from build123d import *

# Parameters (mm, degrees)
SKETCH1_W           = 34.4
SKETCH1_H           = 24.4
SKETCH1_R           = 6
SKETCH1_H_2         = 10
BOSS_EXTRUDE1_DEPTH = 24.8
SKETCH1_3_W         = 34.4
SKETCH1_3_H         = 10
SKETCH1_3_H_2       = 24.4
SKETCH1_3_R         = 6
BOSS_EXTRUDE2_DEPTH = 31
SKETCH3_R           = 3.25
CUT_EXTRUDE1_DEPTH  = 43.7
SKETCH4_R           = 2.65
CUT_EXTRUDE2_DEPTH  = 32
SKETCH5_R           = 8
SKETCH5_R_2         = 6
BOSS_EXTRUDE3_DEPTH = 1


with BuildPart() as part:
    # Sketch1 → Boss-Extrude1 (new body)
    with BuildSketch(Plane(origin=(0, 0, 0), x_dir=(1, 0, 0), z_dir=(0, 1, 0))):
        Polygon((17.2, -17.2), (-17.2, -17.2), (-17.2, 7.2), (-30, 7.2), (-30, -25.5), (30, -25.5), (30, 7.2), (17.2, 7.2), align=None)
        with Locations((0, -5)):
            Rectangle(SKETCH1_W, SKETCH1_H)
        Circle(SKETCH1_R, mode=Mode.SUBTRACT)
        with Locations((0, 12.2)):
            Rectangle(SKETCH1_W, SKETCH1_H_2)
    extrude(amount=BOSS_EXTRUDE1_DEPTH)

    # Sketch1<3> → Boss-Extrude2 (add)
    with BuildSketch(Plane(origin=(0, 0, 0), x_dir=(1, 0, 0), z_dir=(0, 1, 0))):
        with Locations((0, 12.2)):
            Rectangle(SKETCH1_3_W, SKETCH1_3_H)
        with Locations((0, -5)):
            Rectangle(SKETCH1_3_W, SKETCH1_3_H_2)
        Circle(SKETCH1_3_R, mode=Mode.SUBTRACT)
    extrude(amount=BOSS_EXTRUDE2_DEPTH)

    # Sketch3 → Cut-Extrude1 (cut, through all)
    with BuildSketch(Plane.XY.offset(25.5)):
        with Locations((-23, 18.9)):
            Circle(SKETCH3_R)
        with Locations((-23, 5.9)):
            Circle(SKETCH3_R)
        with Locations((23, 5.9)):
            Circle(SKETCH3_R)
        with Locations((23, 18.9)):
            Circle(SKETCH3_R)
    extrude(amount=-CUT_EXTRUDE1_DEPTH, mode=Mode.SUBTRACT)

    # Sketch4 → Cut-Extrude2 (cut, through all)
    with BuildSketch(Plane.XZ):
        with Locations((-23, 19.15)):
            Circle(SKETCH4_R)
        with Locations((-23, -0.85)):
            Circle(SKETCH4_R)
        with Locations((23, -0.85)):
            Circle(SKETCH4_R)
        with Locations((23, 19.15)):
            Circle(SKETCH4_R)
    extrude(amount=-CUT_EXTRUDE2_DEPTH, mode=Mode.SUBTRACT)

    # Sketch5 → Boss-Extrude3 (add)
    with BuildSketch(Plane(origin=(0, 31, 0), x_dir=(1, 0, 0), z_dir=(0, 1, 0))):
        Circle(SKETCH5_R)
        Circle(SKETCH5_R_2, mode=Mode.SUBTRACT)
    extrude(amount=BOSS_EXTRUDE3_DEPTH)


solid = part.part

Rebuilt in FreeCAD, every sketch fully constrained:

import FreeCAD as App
import Part
import Sketcher
from FreeCAD import Vector
Q = App.Units.Quantity


def add_polygon(sketch, points):
    """Adds a closed chain of lines whose ends are joined by coincident constraints."""
    first, n = sketch.GeometryCount, len(points)
    for a, b in zip(points, points[1:] + points[:1]):
        sketch.addGeometry(Part.LineSegment(App.Vector(*a, 0), App.Vector(*b, 0)), False)
    for i in range(n):
        sketch.addConstraint(Sketcher.Constraint("Coincident", first + i, 2, first + (i + 1) % n, 1))

doc = App.newDocument("Part")
body = doc.addObject("PartDesign::Body", "Body")

# Sketch on XZ plane
sketch1 = body.newObject("Sketcher::SketchObject", "Sketch")
sketch1.AttachmentSupport = (doc.getObject("XZ_Plane"), [""])
sketch1.MapMode = "FlatFace"
add_polygon(sketch1, [(-30, -7), (-30, 26), (30, 26), (30, -7), (17, -7), (17, -17), (-17, -17), (-17, -7)])  # lines 0-7
sketch1.addGeometry(Part.Circle(Vector(0, 0, 0), Vector(0, 0, 1), 6), False)  # 8
sketch1.addConstraint(Sketcher.Constraint("Vertical", 0))
sketch1.addConstraint(Sketcher.Constraint("Horizontal", 1))
sketch1.addConstraint(Sketcher.Constraint("Vertical", 2))
sketch1.addConstraint(Sketcher.Constraint("Horizontal", 3))
sketch1.addConstraint(Sketcher.Constraint("Vertical", 4))
sketch1.addConstraint(Sketcher.Constraint("Horizontal", 5))
sketch1.addConstraint(Sketcher.Constraint("Vertical", 6))
sketch1.addConstraint(Sketcher.Constraint("Horizontal", 7))
sketch1.addConstraint(Sketcher.Constraint("Coincident", 8, 3, -1, 1))
sketch1.addConstraint(Sketcher.Constraint("Symmetric", 3, 2, 6, 2, -2))
sketch1.addConstraint(Sketcher.Constraint("Equal", 3, 7))
sketch1.addConstraint(Sketcher.Constraint("Diameter", 8, Q("12 mm")))
sketch1.addConstraint(Sketcher.Constraint("DistanceX", 1, 1, 1, 2, Q("60 mm")))
sketch1.addConstraint(Sketcher.Constraint("DistanceY", 4, 2, 4, 1, Q("10 mm")))
sketch1.addConstraint(Sketcher.Constraint("DistanceX", 3, 2, 3, 1, Q("12.8 mm")))
sketch1.addConstraint(Sketcher.Constraint("DistanceY", 0, 1, 0, 2, Q("32.7 mm")))
sketch1.addConstraint(Sketcher.Constraint("DistanceY", -1, 1, 0, 2, Q("25.5 mm")))
pad1 = body.newObject("PartDesign::Pad", "Pad")
pad1.Profile = sketch1
pad1.Length = 24.8
pad1.Reversed = True

# Sketch on XZ plane
sketch2 = body.newObject("Sketcher::SketchObject", "Sketch001")
sketch2.AttachmentSupport = (doc.getObject("XZ_Plane"), [""])
sketch2.MapMode = "FlatFace"
add_polygon(sketch2, [(-17, -17), (-17, 17), (17, 17), (17, -17)])  # lines 0-3
sketch2.addGeometry(Part.Circle(Vector(0, 0, 0), Vector(0, 0, 1), 6), False)  # 4
sketch2.addConstraint(Sketcher.Constraint("Vertical", 0))
sketch2.addConstraint(Sketcher.Constraint("Horizontal", 1))
sketch2.addConstraint(Sketcher.Constraint("Vertical", 2))
sketch2.addConstraint(Sketcher.Constraint("Horizontal", 3))
sketch2.addConstraint(Sketcher.Constraint("Coincident", 4, 3, -1, 1))
sketch2.addConstraint(Sketcher.Constraint("Symmetric", 0, 2, 2, 2, -1, 1))
sketch2.addConstraint(Sketcher.Constraint("Equal", 3, 0))
sketch2.addConstraint(Sketcher.Constraint("Diameter", 4, Q("12 mm")))
sketch2.addConstraint(Sketcher.Constraint("DistanceX", 1, 1, 1, 2, Q("34.4 mm")))
pad2 = body.newObject("PartDesign::Pad", "Pad001")
pad2.Profile = sketch2
pad2.Length = 31
pad2.Reversed = True

# Sketch on XY plane
sketch3 = body.newObject("Sketcher::SketchObject", "Sketch002")
sketch3.AttachmentSupport = (doc.getObject("XY_Plane"), [""])
sketch3.MapMode = "FlatFace"
sketch3.AttachmentOffset = App.Placement(Vector(0, 0, 25.5), App.Rotation())
sketch3.addGeometry(Part.Circle(Vector(-23, 18.9, 0), Vector(0, 0, 1), 3.2), False)
sketch3.addGeometry(Part.Circle(Vector(-23, 5.9, 0), Vector(0, 0, 1), 3.2), False)
sketch3.addGeometry(Part.Circle(Vector(23, 5.9, 0), Vector(0, 0, 1), 3.2), False)
sketch3.addGeometry(Part.Circle(Vector(23, 18.9, 0), Vector(0, 0, 1), 3.2), False)
sketch3.addConstraint(Sketcher.Constraint("Equal", 0, 1))
sketch3.addConstraint(Sketcher.Constraint("Equal", 1, 2))
sketch3.addConstraint(Sketcher.Constraint("Equal", 2, 3))
sketch3.addConstraint(Sketcher.Constraint("Symmetric", 1, 3, 2, 3, -2))
sketch3.addConstraint(Sketcher.Constraint("Symmetric", 0, 3, 3, 3, -2))
sketch3.addConstraint(Sketcher.Constraint("Vertical", 0, 3, 1, 3))
sketch3.addConstraint(Sketcher.Constraint("Diameter", 0, Q("6.5 mm")))
sketch3.addConstraint(Sketcher.Constraint("DistanceX", 0, 3, -1, 1, Q("23 mm")))
sketch3.addConstraint(Sketcher.Constraint("DistanceY", 1, 3, 0, 3, Q("13 mm")))
sketch3.addConstraint(Sketcher.Constraint("DistanceY", -1, 1, 0, 3, Q("18.9 mm")))
pocket1 = body.newObject("PartDesign::Pocket", "Pocket")
pocket1.Profile = sketch3
pocket1.Type = "ThroughAll"

# Sketch on XZ plane
sketch4 = body.newObject("Sketcher::SketchObject", "Sketch003")
sketch4.AttachmentSupport = (doc.getObject("XZ_Plane"), [""])
sketch4.MapMode = "FlatFace"
sketch4.addGeometry(Part.Circle(Vector(-23, 19.1, 0), Vector(0, 0, 1), 2.6), False)
sketch4.addGeometry(Part.Circle(Vector(-23, -0.8, 0), Vector(0, 0, 1), 2.6), False)
sketch4.addGeometry(Part.Circle(Vector(23, -0.8, 0), Vector(0, 0, 1), 2.6), False)
sketch4.addGeometry(Part.Circle(Vector(23, 19.1, 0), Vector(0, 0, 1), 2.6), False)
sketch4.addConstraint(Sketcher.Constraint("Equal", 0, 1))
sketch4.addConstraint(Sketcher.Constraint("Equal", 1, 2))
sketch4.addConstraint(Sketcher.Constraint("Equal", 2, 3))
sketch4.addConstraint(Sketcher.Constraint("Symmetric", 1, 3, 2, 3, -2))
sketch4.addConstraint(Sketcher.Constraint("Symmetric", 0, 3, 3, 3, -2))
sketch4.addConstraint(Sketcher.Constraint("Vertical", 0, 3, 1, 3))
sketch4.addConstraint(Sketcher.Constraint("Diameter", 0, Q("5.3 mm")))
sketch4.addConstraint(Sketcher.Constraint("DistanceX", 0, 3, -1, 1, Q("23 mm")))
sketch4.addConstraint(Sketcher.Constraint("DistanceY", 1, 3, 0, 3, Q("20 mm")))
sketch4.addConstraint(Sketcher.Constraint("DistanceY", -1, 1, 0, 3, Q("19.15 mm")))
pocket2 = body.newObject("PartDesign::Pocket", "Pocket001")
pocket2.Profile = sketch4
pocket2.Type = "ThroughAll"

# Sketch on XZ plane
sketch5 = body.newObject("Sketcher::SketchObject", "Sketch004")
sketch5.AttachmentSupport = (doc.getObject("XZ_Plane"), [""])
sketch5.MapMode = "FlatFace"
sketch5.AttachmentOffset = App.Placement(Vector(0, 0, -31), App.Rotation())
sketch5.addGeometry(Part.Circle(Vector(0, 0, 0), Vector(0, 0, 1), 8), False)
sketch5.addGeometry(Part.Circle(Vector(0, 0, 0), Vector(0, 0, 1), 6), False)
sketch5.addConstraint(Sketcher.Constraint("Coincident", 0, 3, -1, 1))
sketch5.addConstraint(Sketcher.Constraint("Coincident", 1, 3, -1, 1))
sketch5.addConstraint(Sketcher.Constraint("Diameter", 0, Q("16 mm")))
sketch5.addConstraint(Sketcher.Constraint("Diameter", 1, Q("12 mm")))
pad3 = body.newObject("PartDesign::Pad", "Pad002")
pad3.Profile = sketch5
pad3.Length = 1
pad3.Reversed = True

doc.recompute()
